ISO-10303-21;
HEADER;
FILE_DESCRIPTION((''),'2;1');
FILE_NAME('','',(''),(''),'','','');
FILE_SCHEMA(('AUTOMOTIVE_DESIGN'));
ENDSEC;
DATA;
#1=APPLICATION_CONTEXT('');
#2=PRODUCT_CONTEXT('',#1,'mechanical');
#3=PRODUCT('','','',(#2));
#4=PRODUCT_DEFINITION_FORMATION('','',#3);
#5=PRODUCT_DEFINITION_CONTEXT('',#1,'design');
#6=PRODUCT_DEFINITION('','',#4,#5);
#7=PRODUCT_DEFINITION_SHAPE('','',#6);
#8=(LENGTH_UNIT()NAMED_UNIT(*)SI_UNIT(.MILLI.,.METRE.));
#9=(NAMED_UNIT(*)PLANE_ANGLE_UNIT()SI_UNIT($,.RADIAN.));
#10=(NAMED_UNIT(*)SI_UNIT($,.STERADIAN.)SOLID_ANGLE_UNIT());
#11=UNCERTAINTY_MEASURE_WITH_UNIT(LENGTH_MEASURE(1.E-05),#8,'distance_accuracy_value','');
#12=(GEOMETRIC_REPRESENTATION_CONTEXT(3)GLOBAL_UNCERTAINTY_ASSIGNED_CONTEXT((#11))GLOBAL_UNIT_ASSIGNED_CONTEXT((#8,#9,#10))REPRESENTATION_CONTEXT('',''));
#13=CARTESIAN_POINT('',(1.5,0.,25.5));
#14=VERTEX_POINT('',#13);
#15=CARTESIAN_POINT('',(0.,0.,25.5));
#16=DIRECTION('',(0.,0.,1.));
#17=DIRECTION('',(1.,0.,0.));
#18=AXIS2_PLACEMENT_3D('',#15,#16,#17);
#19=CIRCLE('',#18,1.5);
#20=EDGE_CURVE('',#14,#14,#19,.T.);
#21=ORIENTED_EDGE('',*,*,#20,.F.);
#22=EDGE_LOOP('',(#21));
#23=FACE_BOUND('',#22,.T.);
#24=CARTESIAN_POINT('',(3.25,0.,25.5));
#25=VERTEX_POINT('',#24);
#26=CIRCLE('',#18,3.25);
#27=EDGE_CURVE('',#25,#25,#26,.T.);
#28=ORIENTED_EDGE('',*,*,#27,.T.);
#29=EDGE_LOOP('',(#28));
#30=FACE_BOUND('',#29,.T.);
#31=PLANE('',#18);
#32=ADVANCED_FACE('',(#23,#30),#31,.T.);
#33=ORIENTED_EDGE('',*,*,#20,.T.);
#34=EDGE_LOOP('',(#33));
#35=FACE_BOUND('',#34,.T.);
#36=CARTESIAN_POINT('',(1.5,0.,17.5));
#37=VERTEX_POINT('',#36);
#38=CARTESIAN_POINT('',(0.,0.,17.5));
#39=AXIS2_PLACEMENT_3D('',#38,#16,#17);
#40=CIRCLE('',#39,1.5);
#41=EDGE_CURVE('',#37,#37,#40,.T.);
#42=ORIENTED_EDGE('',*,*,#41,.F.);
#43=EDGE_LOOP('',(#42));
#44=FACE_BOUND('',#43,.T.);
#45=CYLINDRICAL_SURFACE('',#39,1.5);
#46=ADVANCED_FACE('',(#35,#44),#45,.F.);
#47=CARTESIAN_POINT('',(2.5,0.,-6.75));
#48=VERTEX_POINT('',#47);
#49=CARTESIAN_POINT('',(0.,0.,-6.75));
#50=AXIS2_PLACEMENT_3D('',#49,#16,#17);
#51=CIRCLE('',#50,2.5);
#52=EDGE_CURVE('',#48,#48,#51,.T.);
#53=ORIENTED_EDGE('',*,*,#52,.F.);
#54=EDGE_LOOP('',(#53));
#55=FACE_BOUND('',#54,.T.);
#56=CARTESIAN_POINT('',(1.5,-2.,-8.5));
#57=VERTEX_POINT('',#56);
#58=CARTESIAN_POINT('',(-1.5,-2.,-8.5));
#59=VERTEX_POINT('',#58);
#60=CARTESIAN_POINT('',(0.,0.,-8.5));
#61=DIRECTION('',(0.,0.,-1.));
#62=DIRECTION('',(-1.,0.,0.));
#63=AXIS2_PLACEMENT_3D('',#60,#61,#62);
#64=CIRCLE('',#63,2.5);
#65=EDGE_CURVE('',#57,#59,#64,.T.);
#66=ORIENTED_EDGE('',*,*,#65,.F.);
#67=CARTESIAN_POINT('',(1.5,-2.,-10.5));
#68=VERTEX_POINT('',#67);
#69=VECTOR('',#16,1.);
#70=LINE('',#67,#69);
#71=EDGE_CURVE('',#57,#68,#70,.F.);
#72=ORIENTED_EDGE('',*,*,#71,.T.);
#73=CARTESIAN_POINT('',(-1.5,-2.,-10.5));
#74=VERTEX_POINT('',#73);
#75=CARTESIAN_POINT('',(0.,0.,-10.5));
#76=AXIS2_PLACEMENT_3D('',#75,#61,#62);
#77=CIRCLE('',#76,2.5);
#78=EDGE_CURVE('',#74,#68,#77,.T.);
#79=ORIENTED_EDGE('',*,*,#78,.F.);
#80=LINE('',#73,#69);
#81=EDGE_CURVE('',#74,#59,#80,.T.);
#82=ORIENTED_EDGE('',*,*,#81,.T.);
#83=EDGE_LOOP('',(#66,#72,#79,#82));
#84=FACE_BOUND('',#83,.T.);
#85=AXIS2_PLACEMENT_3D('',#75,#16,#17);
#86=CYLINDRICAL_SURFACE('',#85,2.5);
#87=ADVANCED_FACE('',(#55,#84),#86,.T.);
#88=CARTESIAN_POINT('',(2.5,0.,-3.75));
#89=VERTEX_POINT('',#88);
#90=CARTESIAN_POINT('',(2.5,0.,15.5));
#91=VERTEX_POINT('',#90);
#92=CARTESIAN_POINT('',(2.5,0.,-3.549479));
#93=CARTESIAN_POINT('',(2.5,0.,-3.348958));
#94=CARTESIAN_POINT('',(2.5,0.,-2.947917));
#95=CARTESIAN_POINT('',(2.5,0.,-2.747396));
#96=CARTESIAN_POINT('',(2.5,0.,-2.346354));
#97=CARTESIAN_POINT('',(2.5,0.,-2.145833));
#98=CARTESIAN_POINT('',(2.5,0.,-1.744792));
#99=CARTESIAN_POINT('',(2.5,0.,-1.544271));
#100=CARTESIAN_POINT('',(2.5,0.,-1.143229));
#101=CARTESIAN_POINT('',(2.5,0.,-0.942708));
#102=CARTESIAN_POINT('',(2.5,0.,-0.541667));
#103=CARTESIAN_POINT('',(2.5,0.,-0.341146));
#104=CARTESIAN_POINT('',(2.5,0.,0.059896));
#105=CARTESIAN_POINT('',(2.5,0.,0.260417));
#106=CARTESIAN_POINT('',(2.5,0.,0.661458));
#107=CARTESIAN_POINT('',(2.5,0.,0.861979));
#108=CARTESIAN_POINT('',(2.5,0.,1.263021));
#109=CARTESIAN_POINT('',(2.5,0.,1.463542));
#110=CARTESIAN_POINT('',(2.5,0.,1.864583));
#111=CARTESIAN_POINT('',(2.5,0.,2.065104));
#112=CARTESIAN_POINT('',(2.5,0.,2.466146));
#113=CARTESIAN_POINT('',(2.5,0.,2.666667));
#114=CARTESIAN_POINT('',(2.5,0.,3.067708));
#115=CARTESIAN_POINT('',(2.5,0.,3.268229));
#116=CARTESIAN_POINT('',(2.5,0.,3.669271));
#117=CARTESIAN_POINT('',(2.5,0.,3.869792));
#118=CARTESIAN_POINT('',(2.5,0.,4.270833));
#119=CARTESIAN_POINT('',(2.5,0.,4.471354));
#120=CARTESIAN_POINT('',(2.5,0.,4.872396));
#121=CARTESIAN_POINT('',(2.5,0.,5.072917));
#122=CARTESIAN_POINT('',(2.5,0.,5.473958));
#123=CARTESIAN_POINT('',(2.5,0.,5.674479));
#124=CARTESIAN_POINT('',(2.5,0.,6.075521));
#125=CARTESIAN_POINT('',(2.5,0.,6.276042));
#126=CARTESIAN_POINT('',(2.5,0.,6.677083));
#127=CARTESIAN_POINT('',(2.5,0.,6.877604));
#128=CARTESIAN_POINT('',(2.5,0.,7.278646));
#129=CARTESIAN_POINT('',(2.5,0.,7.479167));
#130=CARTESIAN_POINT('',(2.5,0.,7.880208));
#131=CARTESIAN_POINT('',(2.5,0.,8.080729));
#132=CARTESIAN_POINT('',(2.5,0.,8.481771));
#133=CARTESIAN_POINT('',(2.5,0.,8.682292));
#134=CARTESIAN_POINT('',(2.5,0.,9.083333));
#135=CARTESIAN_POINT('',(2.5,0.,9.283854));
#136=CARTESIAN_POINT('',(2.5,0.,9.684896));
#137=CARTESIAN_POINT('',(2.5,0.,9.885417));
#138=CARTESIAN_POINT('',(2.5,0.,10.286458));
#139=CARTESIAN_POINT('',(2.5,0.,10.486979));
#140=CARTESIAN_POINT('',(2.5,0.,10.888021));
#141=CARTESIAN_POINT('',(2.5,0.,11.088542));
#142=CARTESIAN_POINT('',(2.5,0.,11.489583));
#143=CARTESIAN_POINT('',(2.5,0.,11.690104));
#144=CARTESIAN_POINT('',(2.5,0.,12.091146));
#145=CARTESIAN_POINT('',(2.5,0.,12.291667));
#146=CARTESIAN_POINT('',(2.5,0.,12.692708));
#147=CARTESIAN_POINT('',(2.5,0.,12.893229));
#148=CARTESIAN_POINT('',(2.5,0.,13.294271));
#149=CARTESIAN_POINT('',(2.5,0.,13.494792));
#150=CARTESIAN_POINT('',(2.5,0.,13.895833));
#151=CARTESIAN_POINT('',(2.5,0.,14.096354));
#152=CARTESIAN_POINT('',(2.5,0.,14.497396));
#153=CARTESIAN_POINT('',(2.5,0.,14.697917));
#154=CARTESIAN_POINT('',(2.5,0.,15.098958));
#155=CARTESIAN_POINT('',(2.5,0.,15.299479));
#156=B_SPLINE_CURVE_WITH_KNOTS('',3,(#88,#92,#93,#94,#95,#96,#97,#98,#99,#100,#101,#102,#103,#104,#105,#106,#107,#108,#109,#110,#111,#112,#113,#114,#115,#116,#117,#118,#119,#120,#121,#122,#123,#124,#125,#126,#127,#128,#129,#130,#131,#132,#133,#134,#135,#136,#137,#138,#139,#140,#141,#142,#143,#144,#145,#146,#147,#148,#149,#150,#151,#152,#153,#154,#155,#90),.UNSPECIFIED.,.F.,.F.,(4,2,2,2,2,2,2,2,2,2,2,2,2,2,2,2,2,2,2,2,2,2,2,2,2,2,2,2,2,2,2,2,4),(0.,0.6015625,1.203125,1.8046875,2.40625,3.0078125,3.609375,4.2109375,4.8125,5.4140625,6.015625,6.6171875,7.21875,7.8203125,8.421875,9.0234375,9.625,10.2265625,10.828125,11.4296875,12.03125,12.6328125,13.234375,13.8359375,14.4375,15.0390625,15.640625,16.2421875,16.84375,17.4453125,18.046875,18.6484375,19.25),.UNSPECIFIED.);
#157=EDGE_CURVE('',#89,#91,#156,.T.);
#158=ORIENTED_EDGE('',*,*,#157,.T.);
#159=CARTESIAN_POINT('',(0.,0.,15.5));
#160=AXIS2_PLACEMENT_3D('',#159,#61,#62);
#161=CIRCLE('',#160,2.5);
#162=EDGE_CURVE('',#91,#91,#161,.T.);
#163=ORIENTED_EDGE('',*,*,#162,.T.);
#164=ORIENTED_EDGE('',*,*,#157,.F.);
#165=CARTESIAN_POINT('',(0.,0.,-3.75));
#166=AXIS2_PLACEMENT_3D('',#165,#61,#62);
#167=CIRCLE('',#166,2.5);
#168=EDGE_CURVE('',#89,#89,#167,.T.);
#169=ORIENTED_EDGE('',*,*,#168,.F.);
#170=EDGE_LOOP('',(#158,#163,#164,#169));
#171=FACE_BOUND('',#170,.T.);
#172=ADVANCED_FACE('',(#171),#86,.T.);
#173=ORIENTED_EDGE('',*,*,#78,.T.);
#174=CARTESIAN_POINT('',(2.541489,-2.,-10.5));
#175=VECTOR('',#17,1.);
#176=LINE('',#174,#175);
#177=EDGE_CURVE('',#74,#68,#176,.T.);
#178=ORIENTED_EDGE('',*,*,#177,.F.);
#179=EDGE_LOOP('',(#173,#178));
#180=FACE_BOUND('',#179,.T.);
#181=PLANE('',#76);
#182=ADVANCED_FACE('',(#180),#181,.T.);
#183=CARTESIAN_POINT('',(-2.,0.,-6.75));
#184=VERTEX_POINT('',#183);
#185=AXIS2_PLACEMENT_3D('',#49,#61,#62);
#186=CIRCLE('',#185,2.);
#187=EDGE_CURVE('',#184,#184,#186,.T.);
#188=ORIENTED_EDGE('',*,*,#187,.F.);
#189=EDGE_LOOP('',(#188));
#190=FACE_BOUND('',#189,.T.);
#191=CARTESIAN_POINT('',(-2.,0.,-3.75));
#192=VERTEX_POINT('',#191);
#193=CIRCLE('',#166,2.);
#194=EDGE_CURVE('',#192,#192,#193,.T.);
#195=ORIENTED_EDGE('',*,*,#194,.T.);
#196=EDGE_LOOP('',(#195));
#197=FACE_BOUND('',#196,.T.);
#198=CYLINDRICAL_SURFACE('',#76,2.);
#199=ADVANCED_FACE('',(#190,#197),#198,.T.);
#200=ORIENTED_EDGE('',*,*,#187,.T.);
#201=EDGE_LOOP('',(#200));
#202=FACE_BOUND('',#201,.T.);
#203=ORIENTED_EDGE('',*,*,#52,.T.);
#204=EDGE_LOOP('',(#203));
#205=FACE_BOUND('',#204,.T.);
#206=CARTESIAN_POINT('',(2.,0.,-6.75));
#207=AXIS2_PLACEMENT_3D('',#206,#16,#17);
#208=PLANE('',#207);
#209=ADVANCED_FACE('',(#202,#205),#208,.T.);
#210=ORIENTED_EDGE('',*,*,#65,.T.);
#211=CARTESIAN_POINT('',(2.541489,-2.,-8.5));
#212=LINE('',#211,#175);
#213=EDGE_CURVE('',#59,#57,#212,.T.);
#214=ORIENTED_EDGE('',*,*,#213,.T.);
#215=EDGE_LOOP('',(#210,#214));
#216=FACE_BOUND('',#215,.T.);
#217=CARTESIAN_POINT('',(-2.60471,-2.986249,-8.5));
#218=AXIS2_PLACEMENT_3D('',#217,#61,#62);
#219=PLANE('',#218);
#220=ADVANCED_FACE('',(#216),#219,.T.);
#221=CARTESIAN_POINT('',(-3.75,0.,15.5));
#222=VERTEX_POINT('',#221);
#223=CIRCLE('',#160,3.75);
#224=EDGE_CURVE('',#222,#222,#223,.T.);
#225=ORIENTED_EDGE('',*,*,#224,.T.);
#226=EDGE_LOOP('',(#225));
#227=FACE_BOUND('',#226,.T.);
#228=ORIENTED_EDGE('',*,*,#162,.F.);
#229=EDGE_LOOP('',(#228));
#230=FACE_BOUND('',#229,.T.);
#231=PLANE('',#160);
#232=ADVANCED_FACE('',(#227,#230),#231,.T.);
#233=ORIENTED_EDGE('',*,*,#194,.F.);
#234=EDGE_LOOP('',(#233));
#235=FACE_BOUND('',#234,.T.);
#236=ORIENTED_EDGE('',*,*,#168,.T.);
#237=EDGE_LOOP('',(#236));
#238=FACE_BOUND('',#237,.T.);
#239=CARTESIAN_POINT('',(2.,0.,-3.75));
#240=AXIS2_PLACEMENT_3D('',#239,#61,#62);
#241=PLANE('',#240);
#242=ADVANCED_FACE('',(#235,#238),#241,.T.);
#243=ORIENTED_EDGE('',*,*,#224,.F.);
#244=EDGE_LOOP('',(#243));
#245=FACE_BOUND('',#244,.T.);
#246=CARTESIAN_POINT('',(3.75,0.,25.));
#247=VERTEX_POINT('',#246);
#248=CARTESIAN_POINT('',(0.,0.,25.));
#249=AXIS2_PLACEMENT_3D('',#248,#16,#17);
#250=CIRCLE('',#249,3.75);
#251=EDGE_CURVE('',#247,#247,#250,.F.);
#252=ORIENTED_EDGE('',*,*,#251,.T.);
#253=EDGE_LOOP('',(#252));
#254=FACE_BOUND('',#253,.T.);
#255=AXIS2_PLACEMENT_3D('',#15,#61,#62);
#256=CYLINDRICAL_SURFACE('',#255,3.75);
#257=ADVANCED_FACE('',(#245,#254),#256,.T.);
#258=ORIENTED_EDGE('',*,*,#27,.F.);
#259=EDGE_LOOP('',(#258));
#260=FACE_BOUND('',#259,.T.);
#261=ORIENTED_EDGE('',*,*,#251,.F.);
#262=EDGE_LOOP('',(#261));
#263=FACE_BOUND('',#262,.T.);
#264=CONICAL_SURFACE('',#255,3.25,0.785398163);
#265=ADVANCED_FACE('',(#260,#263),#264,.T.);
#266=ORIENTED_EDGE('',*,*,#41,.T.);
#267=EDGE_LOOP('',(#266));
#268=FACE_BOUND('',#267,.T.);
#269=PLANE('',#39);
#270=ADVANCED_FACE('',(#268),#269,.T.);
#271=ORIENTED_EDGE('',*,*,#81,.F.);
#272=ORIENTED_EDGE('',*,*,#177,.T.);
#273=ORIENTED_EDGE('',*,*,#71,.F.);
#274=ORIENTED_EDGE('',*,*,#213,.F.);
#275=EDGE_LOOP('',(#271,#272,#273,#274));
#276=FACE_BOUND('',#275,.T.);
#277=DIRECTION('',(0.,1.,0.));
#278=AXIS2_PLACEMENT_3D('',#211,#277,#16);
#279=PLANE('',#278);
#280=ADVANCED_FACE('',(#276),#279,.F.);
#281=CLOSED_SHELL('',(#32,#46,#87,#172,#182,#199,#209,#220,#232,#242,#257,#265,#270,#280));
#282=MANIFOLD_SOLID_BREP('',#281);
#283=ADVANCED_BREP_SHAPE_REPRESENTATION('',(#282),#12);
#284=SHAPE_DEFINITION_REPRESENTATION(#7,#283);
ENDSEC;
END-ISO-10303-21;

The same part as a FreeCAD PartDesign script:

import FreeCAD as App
import Part
import Sketcher
Q = App.Units.Quantity


def edges_at(feature, points):
    """Names of the edges that pass closest to the given points."""
    edges = feature.Shape.Edges
    near = lambda p: min(range(len(edges)), key=lambda i: edges[i].distToShape(Part.Vertex(*p))[0])
    return sorted({f"Edge{near(p) + 1}" for p in points})


def add_polygon(sketch, points):
    """Adds a closed chain of lines whose ends are joined by coincident constraints."""
    first, n = sketch.GeometryCount, len(points)
    for a, b in zip(points, points[1:] + points[:1]):
        sketch.addGeometry(Part.LineSegment(App.Vector(*a, 0), App.Vector(*b, 0)), False)
    for i in range(n):
        sketch.addConstraint(Sketcher.Constraint("Coincident", first + i, 2, first + (i + 1) % n, 1))

doc = App.newDocument("Part")
body = doc.addObject("PartDesign::Body", "Body")

sketch1 = body.newObject("Sketcher::SketchObject", "Sketch")
sketch1.AttachmentSupport = (doc.getObject("XY_Plane"), [""])
sketch1.MapMode = "FlatFace"
sketch1.addGeometry(Part.Circle(App.Vector(0, 0, 0), App.Vector(0, 0, 1), 3.75), False)
sketch1.addConstraint(Sketcher.Constraint("Coincident", 0, 3, -1, 1))
sketch1.addConstraint(Sketcher.Constraint("Diameter", 0, Q("7.5 mm")))
pad1 = body.newObject("PartDesign::Pad", "Pad")
pad1.Profile = sketch1
pad1.Length = 25.5

sketch2 = body.newObject("Sketcher::SketchObject", "Sketch001")
sketch2.AttachmentSupport = (doc.getObject("XY_Plane"), [""])
sketch2.MapMode = "FlatFace"
sketch2.addGeometry(Part.Circle(App.Vector(0, 0, 0), App.Vector(0, 0, 1), 2.5), False)
sketch2.addConstraint(Sketcher.Constraint("Coincident", 0, 3, -1, 1))
sketch2.addConstraint(Sketcher.Constraint("Diameter", 0, Q("5 mm")))
pad2 = body.newObject("PartDesign::Pad", "Pad001")
pad2.Profile = sketch2
pad2.Length = 10.5
pad2.Reversed = True

sketch3 = body.newObject("Sketcher::SketchObject", "Sketch002")
sketch3.AttachmentSupport = (doc.getObject("XY_Plane"), [""])
sketch3.MapMode = "FlatFace"
sketch3.AttachmentOffset = App.Placement(App.Vector(0, 0, 25.5), App.Rotation())
sketch3.addGeometry(Part.Circle(App.Vector(0, 0, 0), App.Vector(0, 0, 1), 1.5), False)
sketch3.addConstraint(Sketcher.Constraint("Coincident", 0, 3, -1, 1))
sketch3.addConstraint(Sketcher.Constraint("Diameter", 0, Q("3 mm")))
pocket1 = body.newObject("PartDesign::Pocket", "Pocket")
pocket1.Profile = sketch3
pocket1.Length = 8

sketch4 = body.newObject("Sketcher::SketchObject", "Sketch003")
sketch4.AttachmentSupport = (doc.getObject("XZ_Plane"), [""])
sketch4.MapMode = "FlatFace"
add_polygon(sketch4, [(2, -6.75), (2, -3.75), (5.097754, -3.75), (5.097754, -6.75)])
sketch4.addConstraint(Sketcher.Constraint("Vertical", 0))
sketch4.addConstraint(Sketcher.Constraint("Horizontal", 1))
sketch4.addConstraint(Sketcher.Constraint("Vertical", 2))
sketch4.addConstraint(Sketcher.Constraint("Horizontal", 3))
sketch4.addConstraint(Sketcher.Constraint("DistanceY", 0, 1, 0, 2, Q("3 mm")))
sketch4.addConstraint(Sketcher.Constraint("DistanceX", -1, 1, 0, 2, Q("2 mm")))
sketch4.addConstraint(Sketcher.Constraint("DistanceY", 0, 2, -1, 1, Q("3.75 mm")))
sketch4.addConstraint(Sketcher.Constraint("DistanceX", 1, 1, 1, 2, Q("3.097754 mm")))
groove = body.newObject("PartDesign::Groove", "Groove")
groove.Profile = sketch4
groove.ReferenceAxis = (sketch4, ["V_Axis"])
groove.Angle = 360

sketch5 = body.newObject("Sketcher::SketchObject", "Sketch004")
sketch5.AttachmentSupport = (doc.getObject("XY_Plane"), [""])
sketch5.MapMode = "FlatFace"
sketch5.AttachmentOffset = App.Placement(App.Vector(0, 0, -10.5), App.Rotation())
add_polygon(sketch5, [(2.541489, -2), (2.541489, -2.986249), (-2.60471, -2.986249), (-2.60471, -2)])
sketch5.addConstraint(Sketcher.Constraint("Vertical", 0))
sketch5.addConstraint(Sketcher.Constraint("Horizontal", 1))
sketch5.addConstraint(Sketcher.Constraint("Vertical", 2))
sketch5.addConstraint(Sketcher.Constraint("Horizontal", 3))
sketch5.addConstraint(Sketcher.Constraint("DistanceY", 2, 2, -1, 1, Q("2 mm")))
sketch5.addConstraint(Sketcher.Constraint("DistanceX", 1, 2, 1, 1, Q("5.146199 mm")))
sketch5.addConstraint(Sketcher.Constraint("DistanceY", 0, 2, 0, 1, Q("0.986249 mm")))
sketch5.addConstraint(Sketcher.Constraint("DistanceX", -1, 1, 0, 2, Q("2.541489 mm")))
pocket2 = body.newObject("PartDesign::Pocket", "Pocket001")
pocket2.Profile = sketch5
pocket2.Length = 2
pocket2.Reversed = True

sketch6 = body.newObject("Sketcher::SketchObject", "Sketch005")
sketch6.AttachmentSupport = (doc.getObject("XY_Plane"), [""])
sketch6.MapMode = "FlatFace"
add_polygon(sketch6, [(8.503, 8.503), (8.503, -8.503), (-8.503, -8.503), (-8.503, 8.503)])
sketch6.addGeometry(Part.Circle(App.Vector(0, 0, 0), App.Vector(0, 0, 1), 2.5), False)
sketch6.addConstraint(Sketcher.Constraint("Vertical", 0))
sketch6.addConstraint(Sketcher.Constraint("Horizontal", 1))
sketch6.addConstraint(Sketcher.Constraint("Vertical", 2))
sketch6.addConstraint(Sketcher.Constraint("Horizontal", 3))
sketch6.addConstraint(Sketcher.Constraint("Coincident", 4, 3, -1, 1))
sketch6.addConstraint(Sketcher.Constraint("Symmetric", 0, 2, 2, 2, -1, 1))
sketch6.addConstraint(Sketcher.Constraint("Equal", 3, 0))
sketch6.addConstraint(Sketcher.Constraint("Diameter", 4, Q("5 mm")))
sketch6.addConstraint(Sketcher.Constraint("DistanceX", 1, 2, 1, 1, Q("17.006 mm")))
pocket3 = body.newObject("PartDesign::Pocket", "Pocket002")
pocket3.Profile = sketch6
pocket3.Length = 15.5
pocket3.Reversed = True
doc.recompute()

chamfer = body.newObject("PartDesign::Chamfer", "Chamfer")
chamfer.Base = (pocket3, edges_at(pocket3, [(-3.75, 0, 25.5)]))
chamfer.Size = 0.5

doc.recompute()
